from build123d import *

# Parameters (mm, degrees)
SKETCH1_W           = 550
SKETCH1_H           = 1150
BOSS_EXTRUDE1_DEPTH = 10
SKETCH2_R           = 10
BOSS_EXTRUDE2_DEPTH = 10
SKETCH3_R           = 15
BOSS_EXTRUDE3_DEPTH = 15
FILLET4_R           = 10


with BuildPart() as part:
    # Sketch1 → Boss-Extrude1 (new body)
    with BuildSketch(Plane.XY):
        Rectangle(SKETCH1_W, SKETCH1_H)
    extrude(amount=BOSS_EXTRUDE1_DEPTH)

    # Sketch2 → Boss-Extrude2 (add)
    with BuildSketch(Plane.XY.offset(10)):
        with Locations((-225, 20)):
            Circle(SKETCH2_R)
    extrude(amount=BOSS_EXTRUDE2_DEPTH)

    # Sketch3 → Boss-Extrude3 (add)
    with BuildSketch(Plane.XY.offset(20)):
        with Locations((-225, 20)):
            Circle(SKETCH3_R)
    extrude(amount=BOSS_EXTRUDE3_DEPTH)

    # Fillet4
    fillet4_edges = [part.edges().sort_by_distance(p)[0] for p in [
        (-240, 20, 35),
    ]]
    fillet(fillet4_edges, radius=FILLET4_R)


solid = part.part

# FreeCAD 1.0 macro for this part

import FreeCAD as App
import Part
import Sketcher
from FreeCAD import Vector
Q = App.Units.Quantity


def edges_at(feature, points):
    """Names of the edges that pass closest to the given points."""
    edges = feature.Shape.Edges
    near = lambda p: min(range(len(edges)), key=lambda i: edges[i].distToShape(Part.Vertex(*p))[0])
    return sorted({f"Edge{near(p) + 1}" for p in points})


def add_polygon(sketch, points):
    """Adds a closed chain of lines whose ends are joined by coincident constraints."""
    first, n = sketch.GeometryCount, len(points)
    for a, b in zip(points, points[1:] + points[:1]):
        sketch.addGeometry(Part.LineSegment(App.Vector(*a, 0), App.Vector(*b, 0)), False)
    for i in range(n):
        sketch.addConstraint(Sketcher.Constraint("Coincident", first + i, 2, first + (i + 1) % n, 1))

doc = App.newDocument("Part")
body = doc.addObject("PartDesign::Body", "Body")

# Sketch on XY plane
sketch1 = body.newObject("Sketcher::SketchObject", "Sketch")
sketch1.AttachmentSupport = (doc.getObject("XY_Plane"), [""])
sketch1.MapMode = "FlatFace"
add_polygon(sketch1, [(-275, 575), (-275, -575), (275, -575), (275, 575)])  # lines 0-3
sketch1.addConstraint(Sketcher.Constraint("Vertical", 0))
sketch1.addConstraint(Sketcher.Constraint("Horizontal", 1))
sketch1.addConstraint(Sketcher.Constraint("Vertical", 2))
sketch1.addConstraint(Sketcher.Constraint("Horizontal", 3))
sketch1.addConstraint(Sketcher.Constraint("Symmetric", 0, 2, 2, 2, -1, 1))
sketch1.addConstraint(Sketcher.Constraint("DistanceX", 1, 1, 1, 2, Q("550 mm")))
sketch1.addConstraint(Sketcher.Constraint("DistanceY", 0, 2, 0, 1, Q("1150 mm")))
pad1 = body.newObject("PartDesign::Pad", "Pad")
pad1.Profile = sketch1
pad1.Length = 10

# Sketch on XY plane
sketch2 = body.newObject("Sketcher::SketchObject", "Sketch001")
sketch2.AttachmentSupport = (doc.getObject("XY_Plane"), [""])
sketch2.MapMode = "FlatFace"
sketch2.AttachmentOffset = App.Placement(Vector(0, 0, 10), App.Rotation())
sketch2.addGeometry(Part.Circle(Vector(-225, 20, 0), Vector(0, 0, 1), 10), False)
sketch2.addConstraint(Sketcher.Constraint("Diameter", 0, Q("20 mm")))
sketch2.addConstraint(Sketcher.Constraint("DistanceX", 0, 3, -1, 1, Q("225 mm")))
sketch2.addConstraint(Sketcher.Constraint("DistanceY", -1, 1, 0, 3, Q("20 mm")))
pad2 = body.newObject("PartDesign::Pad", "Pad001")
pad2.Profile = sketch2
pad2.Length = 10

# Sketch on XY plane
sketch3 = body.newObject("Sketcher::SketchObject", "Sketch002")
sketch3.AttachmentSupport = (doc.getObject("XY_Plane"), [""])
sketch3.MapMode = "FlatFace"
sketch3.AttachmentOffset = App.Placement(Vector(0, 0, 20), App.Rotation())
sketch3.addGeometry(Part.Circle(Vector(-225, 20, 0), Vector(0, 0, 1), 15), False)
sketch3.addConstraint(Sketcher.Constraint("Diameter", 0, Q("30 mm")))
sketch3.addConstraint(Sketcher.Constraint("DistanceX", 0, 3, -1, 1, Q("225 mm")))
sketch3.addConstraint(Sketcher.Constraint("DistanceY", -1, 1, 0, 3, Q("20 mm")))
pad3 = body.newObject("PartDesign::Pad", "Pad002")
pad3.Profile = sketch3
pad3.Length = 15
doc.recompute()

fillet = body.newObject("PartDesign::Fillet", "Fillet")
fillet.Base = (pad3, edges_at(pad3, [(-240, 20, 35)]))
fillet.Radius = 10

doc.recompute()
